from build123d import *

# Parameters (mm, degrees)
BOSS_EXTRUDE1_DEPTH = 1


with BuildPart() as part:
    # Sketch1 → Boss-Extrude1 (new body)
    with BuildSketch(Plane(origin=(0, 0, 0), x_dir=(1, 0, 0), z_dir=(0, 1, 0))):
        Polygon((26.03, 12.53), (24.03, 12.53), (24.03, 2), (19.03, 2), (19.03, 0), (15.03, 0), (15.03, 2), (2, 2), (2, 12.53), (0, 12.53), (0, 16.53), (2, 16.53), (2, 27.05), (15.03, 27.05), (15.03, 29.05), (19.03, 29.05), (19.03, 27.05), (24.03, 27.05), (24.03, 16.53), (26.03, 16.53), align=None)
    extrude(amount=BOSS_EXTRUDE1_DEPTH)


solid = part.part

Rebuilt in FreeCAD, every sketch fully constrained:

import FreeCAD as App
import Part
import Sketcher
from FreeCAD import Vector
Q = App.Units.Quantity


def add_polygon(sketch, points):
    """Adds a closed chain of lines whose ends are joined by coincident constraints."""
    first, n = sketch.GeometryCount, len(points)
    for a, b in zip(points, points[1:] + points[:1]):
        sketch.addGeometry(Part.LineSegment(App.Vector(*a, 0), App.Vector(*b, 0)), False)
    for i in range(n):
        sketch.addConstraint(Sketcher.Constraint("Coincident", first + i, 2, first + (i + 1) % n, 1))

doc = App.newDocument("Part")
params = doc.addObject("Spreadsheet::Sheet", "Params")
for row, (alias, value) in enumerate([
    ("sketch1_width", "2 mm"),
    ("sketch1_width2", "5 mm"),
    ("sketch1_width3", "4 mm"),
    ("sketch1_width4", "13.03 mm"),
    ("sketch1_height", "10.52 mm"),
    ("pad1_length", "1 mm"),
], start=1):
    params.set(f"A{row}", alias)
    params.set(f"B{row}", "=" + value)
    params.setAlias(f"B{row}", alias)

body = doc.addObject("PartDesign::Body", "Body")

# Sketch on XZ plane
sketch1 = body.newObject("Sketcher::SketchObject", "Sketch")
sketch1.AttachmentSupport = (doc.getObject("XZ_Plane"), [""])
sketch1.MapMode = "FlatFace"
add_polygon(sketch1, [(24.03, -12.53), (26.03, -12.53), (26.03, -16.53), (24.03, -16.53), (24.03, -27.05), (19.03, -27.05), (19.03, -29.05), (15.03, -29.05), (15.03, -27.05), (2, -27.05), (2, -16.53), (0, -16.53), (0, -12.53), (2, -12.53), (2, -2), (15.03, -2), (15.03, 0), (19.03, 0), (19.03, -2), (24.03, -2)])  # lines 0-19
sketch1.addConstraint(Sketcher.Constraint("Horizontal", 0))
sketch1.addConstraint(Sketcher.Constraint("Vertical", 1))
sketch1.addConstraint(Sketcher.Constraint("Horizontal", 2))
sketch1.addConstraint(Sketcher.Constraint("Vertical", 3))
sketch1.addConstraint(Sketcher.Constraint("Horizontal", 4))
sketch1.addConstraint(Sketcher.Constraint("Vertical", 5))
sketch1.addConstraint(Sketcher.Constraint("Horizontal", 6))
sketch1.addConstraint(Sketcher.Constraint("Vertical", 7))
sketch1.addConstraint(Sketcher.Constraint("Horizontal", 8))
sketch1.addConstraint(Sketcher.Constraint("Vertical", 9))
sketch1.addConstraint(Sketcher.Constraint("Horizontal", 10))
sketch1.addConstraint(Sketcher.Constraint("Vertical", 11))
sketch1.addConstraint(Sketcher.Constraint("Horizontal", 12))
sketch1.addConstraint(Sketcher.Constraint("Vertical", 13))
sketch1.addConstraint(Sketcher.Constraint("Horizontal", 14))
sketch1.addConstraint(Sketcher.Constraint("Vertical", 15))
sketch1.addConstraint(Sketcher.Constraint("Horizontal", 16))
sketch1.addConstraint(Sketcher.Constraint("Vertical", 17))
sketch1.addConstraint(Sketcher.Constraint("Horizontal", 18))
sketch1.addConstraint(Sketcher.Constraint("Vertical", 19))
sketch1.addConstraint(Sketcher.Constraint("PointOnObject", 10, 2, -2))
sketch1.addConstraint(Sketcher.Constraint("PointOnObject", 15, 2, -1))
sketch1.addConstraint(Sketcher.Constraint("Horizontal", 4, 2, 7, 2))
sketch1.addConstraint(Sketcher.Constraint("Horizontal", 2, 2, 9, 2))
sketch1.addConstraint(Sketcher.Constraint("Horizontal", 0, 2, 11, 2))
sketch1.addConstraint(Sketcher.Constraint("Horizontal", 14, 2, 17, 2))
sketch1.addConstraint(Sketcher.Constraint("Vertical", 9, 2, 12, 2))
sketch1.addConstraint(Sketcher.Constraint("Vertical", 7, 2, 14, 2))
sketch1.addConstraint(Sketcher.Constraint("Vertical", 5, 2, 16, 2))
sketch1.addConstraint(Sketcher.Constraint("Vertical", 3, 2, 18, 2))
sketch1.addConstraint(Sketcher.Constraint("Equal", 2, 10))
sketch1.addConstraint(Sketcher.Constraint("Equal", 16, 1))
sketch1.addConstraint(Sketcher.Constraint("Equal", 12, 5))
sketch1.addConstraint(Sketcher.Constraint("Equal", 7, 15))
sketch1.addConstraint(Sketcher.Constraint("DistanceX", 0, 1, 0, 2, Q("2 mm")))
sketch1.addConstraint(Sketcher.Constraint("DistanceX", 4, 2, 4, 1, Q("5 mm")))
sketch1.addConstraint(Sketcher.Constraint("DistanceX", 6, 2, 6, 1, Q("4 mm")))
sketch1.addConstraint(Sketcher.Constraint("DistanceX", 8, 2, 8, 1, Q("13.03 mm")))
sketch1.addConstraint(Sketcher.Constraint("DistanceY", 3, 2, 3, 1, Q("10.52 mm")))
sketch1.addConstraint(Sketcher.Constraint("DistanceY", 13, 1, 13, 2, Q("10.53 mm")))
sketch1.setExpression("Constraints[54]", "Params.sketch1_width")
sketch1.setExpression("Constraints[55]", "Params.sketch1_width2")
sketch1.setExpression("Constraints[56]", "Params.sketch1_width3")
sketch1.setExpression("Constraints[57]", "Params.sketch1_width4")
sketch1.setExpression("Constraints[58]", "Params.sketch1_height")
pad1 = body.newObject("PartDesign::Pad", "Pad")
pad1.Profile = sketch1
pad1.setExpression("Length", "Params.pad1_length")
pad1.Reversed = True

doc.recompute()
